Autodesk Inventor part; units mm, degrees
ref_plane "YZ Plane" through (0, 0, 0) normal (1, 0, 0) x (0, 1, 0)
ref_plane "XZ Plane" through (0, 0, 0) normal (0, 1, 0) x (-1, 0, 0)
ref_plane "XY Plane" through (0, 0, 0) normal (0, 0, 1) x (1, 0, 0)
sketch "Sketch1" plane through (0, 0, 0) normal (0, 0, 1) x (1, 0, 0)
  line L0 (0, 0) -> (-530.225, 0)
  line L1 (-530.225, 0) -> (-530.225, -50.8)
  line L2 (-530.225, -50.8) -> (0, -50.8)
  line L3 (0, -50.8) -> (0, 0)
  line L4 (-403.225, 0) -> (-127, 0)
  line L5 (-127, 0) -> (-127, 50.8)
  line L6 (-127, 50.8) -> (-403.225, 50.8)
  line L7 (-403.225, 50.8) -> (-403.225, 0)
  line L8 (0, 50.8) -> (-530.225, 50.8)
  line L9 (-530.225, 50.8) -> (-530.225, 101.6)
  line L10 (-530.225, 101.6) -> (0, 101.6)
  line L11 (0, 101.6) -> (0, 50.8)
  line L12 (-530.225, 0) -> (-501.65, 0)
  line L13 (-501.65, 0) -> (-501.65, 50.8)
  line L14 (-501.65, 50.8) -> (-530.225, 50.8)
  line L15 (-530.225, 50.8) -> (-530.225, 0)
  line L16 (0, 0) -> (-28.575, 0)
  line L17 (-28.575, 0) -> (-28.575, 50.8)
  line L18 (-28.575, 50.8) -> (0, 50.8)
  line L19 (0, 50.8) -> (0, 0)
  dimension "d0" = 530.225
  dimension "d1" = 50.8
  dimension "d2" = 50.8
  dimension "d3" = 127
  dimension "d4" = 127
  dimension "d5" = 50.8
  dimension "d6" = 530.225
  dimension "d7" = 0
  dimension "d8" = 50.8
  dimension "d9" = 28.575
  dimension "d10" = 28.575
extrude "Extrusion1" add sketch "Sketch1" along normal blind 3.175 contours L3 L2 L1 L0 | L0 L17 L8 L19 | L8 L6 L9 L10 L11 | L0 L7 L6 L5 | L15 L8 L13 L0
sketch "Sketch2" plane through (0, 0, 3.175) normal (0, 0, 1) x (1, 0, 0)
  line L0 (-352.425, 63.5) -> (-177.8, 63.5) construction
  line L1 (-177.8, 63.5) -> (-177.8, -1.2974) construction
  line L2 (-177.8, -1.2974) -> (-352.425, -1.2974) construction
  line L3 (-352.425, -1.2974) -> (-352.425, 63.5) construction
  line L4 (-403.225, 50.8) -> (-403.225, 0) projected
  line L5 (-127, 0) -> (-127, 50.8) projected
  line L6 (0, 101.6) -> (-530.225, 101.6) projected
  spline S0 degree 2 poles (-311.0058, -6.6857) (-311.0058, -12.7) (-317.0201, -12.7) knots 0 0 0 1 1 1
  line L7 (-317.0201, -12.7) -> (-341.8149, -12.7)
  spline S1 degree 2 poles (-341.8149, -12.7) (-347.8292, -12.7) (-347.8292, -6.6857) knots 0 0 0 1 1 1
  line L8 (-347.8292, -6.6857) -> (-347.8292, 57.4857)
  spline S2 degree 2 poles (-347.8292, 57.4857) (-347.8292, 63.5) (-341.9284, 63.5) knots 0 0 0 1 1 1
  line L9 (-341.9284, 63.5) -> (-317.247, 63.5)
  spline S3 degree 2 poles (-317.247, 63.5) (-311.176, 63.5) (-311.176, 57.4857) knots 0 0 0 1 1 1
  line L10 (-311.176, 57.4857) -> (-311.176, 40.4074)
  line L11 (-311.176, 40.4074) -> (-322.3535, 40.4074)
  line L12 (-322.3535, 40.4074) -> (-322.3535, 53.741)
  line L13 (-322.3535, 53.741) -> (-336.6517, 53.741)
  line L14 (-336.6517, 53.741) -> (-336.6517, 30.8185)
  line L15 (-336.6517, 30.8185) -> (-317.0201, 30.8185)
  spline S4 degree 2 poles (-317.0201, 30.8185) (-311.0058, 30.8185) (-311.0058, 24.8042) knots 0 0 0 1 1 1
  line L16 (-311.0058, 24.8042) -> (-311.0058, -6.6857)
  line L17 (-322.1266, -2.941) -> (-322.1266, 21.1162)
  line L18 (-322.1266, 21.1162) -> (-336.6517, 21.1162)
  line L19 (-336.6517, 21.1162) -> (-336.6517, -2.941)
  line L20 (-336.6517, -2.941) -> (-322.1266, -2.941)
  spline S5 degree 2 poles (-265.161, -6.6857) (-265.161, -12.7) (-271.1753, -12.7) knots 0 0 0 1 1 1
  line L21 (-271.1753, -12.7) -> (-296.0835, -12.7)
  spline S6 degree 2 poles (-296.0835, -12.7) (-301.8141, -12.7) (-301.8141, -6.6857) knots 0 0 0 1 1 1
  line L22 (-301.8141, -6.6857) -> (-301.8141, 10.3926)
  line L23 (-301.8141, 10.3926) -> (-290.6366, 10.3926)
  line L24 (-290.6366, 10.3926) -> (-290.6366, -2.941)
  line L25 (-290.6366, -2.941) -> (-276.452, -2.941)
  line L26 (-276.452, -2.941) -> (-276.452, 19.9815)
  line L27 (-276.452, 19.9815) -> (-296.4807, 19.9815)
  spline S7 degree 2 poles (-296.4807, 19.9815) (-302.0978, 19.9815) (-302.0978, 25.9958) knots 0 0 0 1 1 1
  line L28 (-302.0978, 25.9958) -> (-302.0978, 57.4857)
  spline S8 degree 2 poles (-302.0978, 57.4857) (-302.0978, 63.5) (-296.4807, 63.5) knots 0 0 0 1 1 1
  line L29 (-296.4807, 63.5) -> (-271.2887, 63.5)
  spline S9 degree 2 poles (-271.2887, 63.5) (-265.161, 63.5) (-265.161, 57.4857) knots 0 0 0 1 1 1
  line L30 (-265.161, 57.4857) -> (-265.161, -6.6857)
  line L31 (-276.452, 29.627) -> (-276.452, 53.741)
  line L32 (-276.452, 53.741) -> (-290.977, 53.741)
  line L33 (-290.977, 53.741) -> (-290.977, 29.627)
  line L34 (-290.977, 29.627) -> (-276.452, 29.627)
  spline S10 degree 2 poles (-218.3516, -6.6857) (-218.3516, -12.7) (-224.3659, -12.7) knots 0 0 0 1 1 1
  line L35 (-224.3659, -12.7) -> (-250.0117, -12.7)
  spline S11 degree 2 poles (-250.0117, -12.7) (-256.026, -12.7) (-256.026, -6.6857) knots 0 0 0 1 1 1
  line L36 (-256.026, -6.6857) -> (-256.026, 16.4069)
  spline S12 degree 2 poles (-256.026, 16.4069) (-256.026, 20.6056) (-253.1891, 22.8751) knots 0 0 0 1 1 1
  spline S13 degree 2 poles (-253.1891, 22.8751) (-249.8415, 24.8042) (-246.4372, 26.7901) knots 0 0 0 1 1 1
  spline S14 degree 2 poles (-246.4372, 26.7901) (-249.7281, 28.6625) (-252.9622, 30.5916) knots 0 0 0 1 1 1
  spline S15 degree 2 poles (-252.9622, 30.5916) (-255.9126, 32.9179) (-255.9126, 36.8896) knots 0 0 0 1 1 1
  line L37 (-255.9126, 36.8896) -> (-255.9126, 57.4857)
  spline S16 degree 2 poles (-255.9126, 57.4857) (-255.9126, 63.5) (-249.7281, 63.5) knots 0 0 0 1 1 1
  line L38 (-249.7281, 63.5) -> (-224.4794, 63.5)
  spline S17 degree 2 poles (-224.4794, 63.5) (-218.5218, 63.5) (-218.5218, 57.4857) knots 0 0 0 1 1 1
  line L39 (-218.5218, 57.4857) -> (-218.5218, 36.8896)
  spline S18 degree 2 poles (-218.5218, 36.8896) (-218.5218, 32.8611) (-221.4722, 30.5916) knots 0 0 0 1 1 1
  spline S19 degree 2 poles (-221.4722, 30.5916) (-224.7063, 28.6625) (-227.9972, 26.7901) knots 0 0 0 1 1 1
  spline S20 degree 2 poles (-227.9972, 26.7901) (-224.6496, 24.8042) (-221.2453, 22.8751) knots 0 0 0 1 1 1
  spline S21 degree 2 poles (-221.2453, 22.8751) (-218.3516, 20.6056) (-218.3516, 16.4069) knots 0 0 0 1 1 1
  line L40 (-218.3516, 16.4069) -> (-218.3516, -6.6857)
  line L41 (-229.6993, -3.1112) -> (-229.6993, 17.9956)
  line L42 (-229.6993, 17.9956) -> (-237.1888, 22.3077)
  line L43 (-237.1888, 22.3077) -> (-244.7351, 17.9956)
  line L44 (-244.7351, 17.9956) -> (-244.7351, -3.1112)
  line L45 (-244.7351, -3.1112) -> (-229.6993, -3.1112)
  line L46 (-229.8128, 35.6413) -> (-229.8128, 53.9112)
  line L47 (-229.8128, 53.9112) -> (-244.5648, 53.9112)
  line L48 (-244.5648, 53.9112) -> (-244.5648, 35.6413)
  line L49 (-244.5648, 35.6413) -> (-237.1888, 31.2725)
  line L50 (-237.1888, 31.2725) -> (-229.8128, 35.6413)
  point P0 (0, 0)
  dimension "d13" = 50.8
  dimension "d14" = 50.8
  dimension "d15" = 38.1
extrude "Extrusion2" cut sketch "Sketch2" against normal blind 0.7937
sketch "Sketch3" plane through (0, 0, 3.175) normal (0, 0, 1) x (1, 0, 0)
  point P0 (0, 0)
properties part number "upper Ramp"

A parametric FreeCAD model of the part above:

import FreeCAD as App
import Part
import Sketcher

V = App.Vector
Q = App.Units.Quantity

doc = App.newDocument("Part")
params = doc.addObject("Spreadsheet::Sheet", "Params")
for row, (alias, value) in enumerate([
    ("sketch1_height", "2 in"),
    ("sketch1_width", "20.875 in"),
    ("pad1_length", "0.125 in"),
    ("pocket1_length", "0.031248 in"),
], start=1):
    params.set(f"A{row}", alias)
    params.set(f"B{row}", "=" + value)
    params.setAlias(f"B{row}", alias)

body = doc.addObject("PartDesign::Body", "Body")

sketch1 = doc.addObject("Sketcher::SketchObject", "Sketch")
body.addObject(sketch1)
sketch1.AttachmentSupport = (doc.XY_Plane, [""])
sketch1.MapMode = "FlatFace"
sketch1.addGeometry(Part.LineSegment(V(0, -51, 0), V(0, 102, 0)), False)
sketch1.addGeometry(Part.LineSegment(V(0, 102, 0), V(-530, 102, 0)), False)
sketch1.addGeometry(Part.LineSegment(V(-530, 102, 0), V(-530, -51, 0)), False)
sketch1.addGeometry(Part.LineSegment(V(-530, -51, 0), V(0, -51, 0)), False)
sketch1.addGeometry(Part.LineSegment(V(-403, 0, 0), V(-502, 0, 0)), False)
sketch1.addGeometry(Part.LineSegment(V(-502, 0, 0), V(-502, 51, 0)), False)
sketch1.addGeometry(Part.LineSegment(V(-502, 51, 0), V(-403, 51, 0)), False)
sketch1.addGeometry(Part.LineSegment(V(-403, 51, 0), V(-403, 0, 0)), False)
sketch1.addGeometry(Part.LineSegment(V(-29, 0, 0), V(-127, 0, 0)), False)
sketch1.addGeometry(Part.LineSegment(V(-127, 0, 0), V(-127, 51, 0)), False)
sketch1.addGeometry(Part.LineSegment(V(-127, 51, 0), V(-29, 51, 0)), False)
sketch1.addGeometry(Part.LineSegment(V(-29, 51, 0), V(-29, 0, 0)), False)
sketch1.addConstraint(Sketcher.Constraint("Coincident", 0, 2, 1, 1))
sketch1.addConstraint(Sketcher.Constraint("Coincident", 1, 2, 2, 1))
sketch1.addConstraint(Sketcher.Constraint("Coincident", 2, 2, 3, 1))
sketch1.addConstraint(Sketcher.Constraint("Coincident", 3, 2, 0, 1))
sketch1.addConstraint(Sketcher.Constraint("Coincident", 4, 2, 5, 1))
sketch1.addConstraint(Sketcher.Constraint("Coincident", 5, 2, 6, 1))
sketch1.addConstraint(Sketcher.Constraint("Coincident", 6, 2, 7, 1))
sketch1.addConstraint(Sketcher.Constraint("Coincident", 7, 2, 4, 1))
sketch1.addConstraint(Sketcher.Constraint("Coincident", 8, 2, 9, 1))
sketch1.addConstraint(Sketcher.Constraint("Coincident", 9, 2, 10, 1))
sketch1.addConstraint(Sketcher.Constraint("Coincident", 10, 2, 11, 1))
sketch1.addConstraint(Sketcher.Constraint("Coincident", 11, 2, 8, 1))
sketch1.addConstraint(Sketcher.Constraint("Vertical", 0))
sketch1.addConstraint(Sketcher.Constraint("Horizontal", 1))
sketch1.addConstraint(Sketcher.Constraint("Vertical", 2))
sketch1.addConstraint(Sketcher.Constraint("Horizontal", 3))
sketch1.addConstraint(Sketcher.Constraint("Horizontal", 4))
sketch1.addConstraint(Sketcher.Constraint("Vertical", 5))
sketch1.addConstraint(Sketcher.Constraint("Horizontal", 6))
sketch1.addConstraint(Sketcher.Constraint("Vertical", 7))
sketch1.addConstraint(Sketcher.Constraint("Horizontal", 8))
sketch1.addConstraint(Sketcher.Constraint("Vertical", 9))
sketch1.addConstraint(Sketcher.Constraint("Horizontal", 10))
sketch1.addConstraint(Sketcher.Constraint("Vertical", 11))
sketch1.addConstraint(Sketcher.Constraint("PointOnObject", 0, 2, -2))
sketch1.addConstraint(Sketcher.Constraint("PointOnObject", 4, 2, -1))
sketch1.addConstraint(Sketcher.Constraint("PointOnObject", 8, 2, -1))
sketch1.addConstraint(Sketcher.Constraint("Horizontal", 6, 2, 9, 2))
sketch1.addConstraint(Sketcher.Constraint("Equal", 6, 8))
sketch1.addConstraint(Sketcher.Constraint("DistanceY", 5, 1, 5, 2, Q("2 in")))
sketch1.addConstraint(Sketcher.Constraint("DistanceY", 2, 2, -1, 1, Q("2 in")))
sketch1.addConstraint(Sketcher.Constraint("DistanceX", 8, 2, -1, 1, Q("5 in")))
sketch1.addConstraint(Sketcher.Constraint("DistanceY", 5, 2, 1, 2, Q("2 in")))
sketch1.addConstraint(Sketcher.Constraint("DistanceX", 1, 2, 6, 2, Q("5 in")))
sketch1.addConstraint(Sketcher.Constraint("DistanceX", 1, 2, 1, 1, Q("20.875 in")))
sketch1.addConstraint(Sketcher.Constraint("DistanceX", 10, 2, -1, 1, Q("1.125 in")))
sketch1.setExpression("Constraints[29]", "Params.sketch1_height")
sketch1.setExpression("Constraints[34]", "Params.sketch1_width")
pad1 = doc.addObject("PartDesign::Pad", "Pad")
body.addObject(pad1)
pad1.Profile = sketch1
pad1.setExpression("Length", "Params.pad1_length")

sketch2 = doc.addObject("Sketcher::SketchObject", "Sketch001")
body.addObject(sketch2)
sketch2.AttachmentSupport = (doc.XY_Plane, [""])
sketch2.MapMode = "FlatFace"
sketch2.AttachmentOffset = App.Placement(V(0, 0, 0.125 * 25.4), App.Rotation())
sketch2.addGeometry(Part.BSplineCurve([V(-311.0058, -6.6857, 0), V(-311.0058, -12.7, 0), V(-317.0201, -12.7, 0)], [3, 3], [0, 1], False, 2, [1, 1, 1], False), False)
sketch2.addGeometry(Part.LineSegment(V(-311.0058, -6.6857, 0), V(-311.0058, 24.8042, 0)), False)
sketch2.addGeometry(Part.BSplineCurve([V(-317.0201, 30.8185, 0), V(-311.0058, 30.8185, 0), V(-311.0058, 24.8042, 0)], [3, 3], [0, 1], False, 2, [1, 1, 1], False), False)
sketch2.addGeometry(Part.LineSegment(V(-317.0201, 30.8185, 0), V(-336.6517, 30.8185, 0)), False)
sketch2.addGeometry(Part.LineSegment(V(-336.6517, 30.8185, 0), V(-336.6517, 53.741, 0)), False)
sketch2.addGeometry(Part.LineSegment(V(-336.6517, 53.741, 0), V(-322.3535, 53.741, 0)), False)
sketch2.addGeometry(Part.LineSegment(V(-322.3535, 53.741, 0), V(-322.3535, 40.4074, 0)), False)
sketch2.addGeometry(Part.LineSegment(V(-322.3535, 40.4074, 0), V(-311.176, 40.4074, 0)), False)
sketch2.addGeometry(Part.LineSegment(V(-311.176, 40.4074, 0), V(-311.176, 57.4857, 0)), False)
sketch2.addGeometry(Part.BSplineCurve([V(-317.247, 63.5, 0), V(-311.176, 63.5, 0), V(-311.176, 57.4857, 0)], [3, 3], [0, 1], False, 2, [1, 1, 1], False), False)
sketch2.addGeometry(Part.LineSegment(V(-317.247, 63.5, 0), V(-341.9284, 63.5, 0)), False)
sketch2.addGeometry(Part.BSplineCurve([V(-347.8292, 57.4857, 0), V(-347.8292, 63.5, 0), V(-341.9284, 63.5, 0)], [3, 3], [0, 1], False, 2, [1, 1, 1], False), False)
sketch2.addGeometry(Part.LineSegment(V(-347.8292, 57.4857, 0), V(-347.8292, -6.6857, 0)), False)
sketch2.addGeometry(Part.BSplineCurve([V(-341.8149, -12.7, 0), V(-347.8292, -12.7, 0), V(-347.8292, -6.6857, 0)], [3, 3], [0, 1], False, 2, [1, 1, 1], False), False)
sketch2.addGeometry(Part.LineSegment(V(-341.8149, -12.7, 0), V(-317.0201, -12.7, 0)), False)
sketch2.addGeometry(Part.LineSegment(V(-322.1266, 21.1162, 0), V(-322.1266, -2.941, 0)), False)
sketch2.addGeometry(Part.LineSegment(V(-322.1266, -2.941, 0), V(-336.6517, -2.941, 0)), False)
sketch2.addGeometry(Part.LineSegment(V(-336.6517, -2.941, 0), V(-336.6517, 21.1162, 0)), False)
sketch2.addGeometry(Part.LineSegment(V(-336.6517, 21.1162, 0), V(-322.1266, 21.1162, 0)), False)
sketch2.addGeometry(Part.BSplineCurve([V(-265.161, -6.6857, 0), V(-265.161, -12.7, 0), V(-271.1753, -12.7, 0)], [3, 3], [0, 1], False, 2, [1, 1, 1], False), False)
sketch2.addGeometry(Part.LineSegment(V(-265.161, -6.6857, 0), V(-265.161, 57.4857, 0)), False)
sketch2.addGeometry(Part.BSplineCurve([V(-271.2887, 63.5, 0), V(-265.161, 63.5, 0), V(-265.161, 57.4857, 0)], [3, 3], [0, 1], False, 2, [1, 1, 1], False), False)
sketch2.addGeometry(Part.LineSegment(V(-271.2887, 63.5, 0), V(-296.4807, 63.5, 0)), False)
sketch2.addGeometry(Part.BSplineCurve([V(-302.0978, 57.4857, 0), V(-302.0978, 63.5, 0), V(-296.4807, 63.5, 0)], [3, 3], [0, 1], False, 2, [1, 1, 1], False), False)
sketch2.addGeometry(Part.LineSegment(V(-302.0978, 57.4857, 0), V(-302.0978, 25.9958, 0)), False)
sketch2.addGeometry(Part.BSplineCurve([V(-296.4807, 19.9815, 0), V(-302.0978, 19.9815, 0), V(-302.0978, 25.9958, 0)], [3, 3], [0, 1], False, 2, [1, 1, 1], False), False)
sketch2.addGeometry(Part.LineSegment(V(-296.4807, 19.9815, 0), V(-276.452, 19.9815, 0)), False)
sketch2.addGeometry(Part.LineSegment(V(-276.452, 19.9815, 0), V(-276.452, -2.941, 0)), False)
sketch2.addGeometry(Part.LineSegment(V(-276.452, -2.941, 0), V(-290.6366, -2.941, 0)), False)
sketch2.addGeometry(Part.LineSegment(V(-290.6366, -2.941, 0), V(-290.6366, 10.3926, 0)), False)
sketch2.addGeometry(Part.LineSegment(V(-290.6366, 10.3926, 0), V(-301.8141, 10.3926, 0)), False)
sketch2.addGeometry(Part.LineSegment(V(-301.8141, 10.3926, 0), V(-301.8141, -6.6857, 0)), False)
sketch2.addGeometry(Part.BSplineCurve([V(-296.0835, -12.7, 0), V(-301.8141, -12.7, 0), V(-301.8141, -6.6857, 0)], [3, 3], [0, 1], False, 2, [1, 1, 1], False), False)
sketch2.addGeometry(Part.LineSegment(V(-296.0835, -12.7, 0), V(-271.1753, -12.7, 0)), False)
sketch2.addGeometry(Part.LineSegment(V(-276.452, 53.741, 0), V(-276.452, 29.627, 0)), False)
sketch2.addGeometry(Part.LineSegment(V(-276.452, 29.627, 0), V(-290.977, 29.627, 0)), False)
sketch2.addGeometry(Part.LineSegment(V(-290.977, 29.627, 0), V(-290.977, 53.741, 0)), False)
sketch2.addGeometry(Part.LineSegment(V(-290.977, 53.741, 0), V(-276.452, 53.741, 0)), False)
sketch2.addGeometry(Part.BSplineCurve([V(-218.3516, -6.6857, 0), V(-218.3516, -12.7, 0), V(-224.3659, -12.7, 0)], [3, 3], [0, 1], False, 2, [1, 1, 1], False), False)
sketch2.addGeometry(Part.LineSegment(V(-218.3516, -6.6857, 0), V(-218.3516, 16.4069, 0)), False)
sketch2.addGeometry(Part.BSplineCurve([V(-221.2453, 22.8751, 0), V(-218.3516, 20.6056, 0), V(-218.3516, 16.4069, 0)], [3, 3], [0, 1], False, 2, [1, 1, 1], False), False)
sketch2.addGeometry(Part.BSplineCurve([V(-227.9972, 26.7901, 0), V(-224.6496, 24.8042, 0), V(-221.2453, 22.8751, 0)], [3, 3], [0, 1], False, 2, [1, 1, 1], False), False)
sketch2.addGeometry(Part.BSplineCurve([V(-221.4722, 30.5916, 0), V(-224.7063, 28.6625, 0), V(-227.9972, 26.7901, 0)], [3, 3], [0, 1], False, 2, [1, 1, 1], False), False)
sketch2.addGeometry(Part.BSplineCurve([V(-218.5218, 36.8896, 0), V(-218.5218, 32.8611, 0), V(-221.4722, 30.5916, 0)], [3, 3], [0, 1], False, 2, [1, 1, 1], False), False)
sketch2.addGeometry(Part.LineSegment(V(-218.5218, 36.8896, 0), V(-218.5218, 57.4857, 0)), False)
sketch2.addGeometry(Part.BSplineCurve([V(-224.4794, 63.5, 0), V(-218.5218, 63.5, 0), V(-218.5218, 57.4857, 0)], [3, 3], [0, 1], False, 2, [1, 1, 1], False), False)
sketch2.addGeometry(Part.LineSegment(V(-224.4794, 63.5, 0), V(-249.7281, 63.5, 0)), False)
sketch2.addGeometry(Part.BSplineCurve([V(-255.9126, 57.4857, 0), V(-255.9126, 63.5, 0), V(-249.7281, 63.5, 0)], [3, 3], [0, 1], False, 2, [1, 1, 1], False), False)
sketch2.addGeometry(Part.LineSegment(V(-255.9126, 57.4857, 0), V(-255.9126, 36.8896, 0)), False)
sketch2.addGeometry(Part.BSplineCurve([V(-252.9622, 30.5916, 0), V(-255.9126, 32.9179, 0), V(-255.9126, 36.8896, 0)], [3, 3], [0, 1], False, 2, [1, 1, 1], False), False)
sketch2.addGeometry(Part.BSplineCurve([V(-246.4372, 26.7901, 0), V(-249.7281, 28.6625, 0), V(-252.9622, 30.5916, 0)], [3, 3], [0, 1], False, 2, [1, 1, 1], False), False)
sketch2.addGeometry(Part.BSplineCurve([V(-253.1891, 22.8751, 0), V(-249.8415, 24.8042, 0), V(-246.4372, 26.7901, 0)], [3, 3], [0, 1], False, 2, [1, 1, 1], False), False)
sketch2.addGeometry(Part.BSplineCurve([V(-256.026, 16.4069, 0), V(-256.026, 20.6056, 0), V(-253.1891, 22.8751, 0)], [3, 3], [0, 1], False, 2, [1, 1, 1], False), False)
sketch2.addGeometry(Part.LineSegment(V(-256.026, 16.4069, 0), V(-256.026, -6.6857, 0)), False)
sketch2.addGeometry(Part.BSplineCurve([V(-250.0117, -12.7, 0), V(-256.026, -12.7, 0), V(-256.026, -6.6857, 0)], [3, 3], [0, 1], False, 2, [1, 1, 1], False), False)
sketch2.addGeometry(Part.LineSegment(V(-250.0117, -12.7, 0), V(-224.3659, -12.7, 0)), False)
sketch2.addGeometry(Part.LineSegment(V(-229.6993, 17.9956, 0), V(-229.6993, -3.1112, 0)), False)
sketch2.addGeometry(Part.LineSegment(V(-229.6993, -3.1112, 0), V(-244.7351, -3.1112, 0)), False)
sketch2.addGeometry(Part.LineSegment(V(-244.7351, -3.1112, 0), V(-244.7351, 17.9956, 0)), False)
sketch2.addGeometry(Part.LineSegment(V(-244.7351, 17.9956, 0), V(-237.1888, 22.3077, 0)), False)
sketch2.addGeometry(Part.LineSegment(V(-237.1888, 22.3077, 0), V(-229.6993, 17.9956, 0)), False)
sketch2.addGeometry(Part.LineSegment(V(-229.8128, 53.9112, 0), V(-229.8128, 35.6413, 0)), False)
sketch2.addGeometry(Part.LineSegment(V(-229.8128, 35.6413, 0), V(-237.1888, 31.2725, 0)), False)
sketch2.addGeometry(Part.LineSegment(V(-237.1888, 31.2725, 0), V(-244.5648, 35.6413, 0)), False)
sketch2.addGeometry(Part.LineSegment(V(-244.5648, 35.6413, 0), V(-244.5648, 53.9112, 0)), False)
sketch2.addGeometry(Part.LineSegment(V(-244.5648, 53.9112, 0), V(-229.8128, 53.9112, 0)), False)
sketch2.addConstraint(Sketcher.Constraint("Block", 0))
sketch2.addConstraint(Sketcher.Constraint("Block", 2))
sketch2.addConstraint(Sketcher.Constraint("Block", 9))
sketch2.addConstraint(Sketcher.Constraint("Block", 11))
sketch2.addConstraint(Sketcher.Constraint("Block", 13))
sketch2.addConstraint(Sketcher.Constraint("Block", 19))
sketch2.addConstraint(Sketcher.Constraint("Block", 21))
sketch2.addConstraint(Sketcher.Constraint("Block", 23))
sketch2.addConstraint(Sketcher.Constraint("Block", 25))
sketch2.addConstraint(Sketcher.Constraint("Block", 32))
sketch2.addConstraint(Sketcher.Constraint("Block", 38))
sketch2.addConstraint(Sketcher.Constraint("Block", 40))
sketch2.addConstraint(Sketcher.Constraint("Block", 41))
sketch2.addConstraint(Sketcher.Constraint("Block", 42))
sketch2.addConstraint(Sketcher.Constraint("Block", 43))
sketch2.addConstraint(Sketcher.Constraint("Block", 45))
sketch2.addConstraint(Sketcher.Constraint("Block", 47))
sketch2.addConstraint(Sketcher.Constraint("Block", 49))
sketch2.addConstraint(Sketcher.Constraint("Block", 50))
sketch2.addConstraint(Sketcher.Constraint("Block", 51))
sketch2.addConstraint(Sketcher.Constraint("Block", 52))
sketch2.addConstraint(Sketcher.Constraint("Block", 54))
sketch2.addConstraint(Sketcher.Constraint("Coincident", 0, 1, 1, 1))
sketch2.addConstraint(Sketcher.Constraint("Coincident", 1, 2, 2, 2))
sketch2.addConstraint(Sketcher.Constraint("Coincident", 2, 1, 3, 1))
sketch2.addConstraint(Sketcher.Constraint("Coincident", 3, 2, 4, 1))
sketch2.addConstraint(Sketcher.Constraint("Coincident", 4, 2, 5, 1))
sketch2.addConstraint(Sketcher.Constraint("Coincident", 5, 2, 6, 1))
sketch2.addConstraint(Sketcher.Constraint("Coincident", 6, 2, 7, 1))
sketch2.addConstraint(Sketcher.Constraint("Coincident", 7, 2, 8, 1))
sketch2.addConstraint(Sketcher.Constraint("Coincident", 8, 2, 9, 2))
sketch2.addConstraint(Sketcher.Constraint("Coincident", 9, 1, 10, 1))
sketch2.addConstraint(Sketcher.Constraint("Coincident", 10, 2, 11, 2))
sketch2.addConstraint(Sketcher.Constraint("Coincident", 11, 1, 12, 1))
sketch2.addConstraint(Sketcher.Constraint("Coincident", 12, 2, 13, 2))
sketch2.addConstraint(Sketcher.Constraint("Coincident", 13, 1, 14, 1))
sketch2.addConstraint(Sketcher.Constraint("Coincident", 14, 2, 0, 2))
sketch2.addConstraint(Sketcher.Constraint("Coincident", 15, 2, 16, 1))
sketch2.addConstraint(Sketcher.Constraint("Coincident", 16, 2, 17, 1))
sketch2.addConstraint(Sketcher.Constraint("Coincident", 17, 2, 18, 1))
sketch2.addConstraint(Sketcher.Constraint("Coincident", 18, 2, 15, 1))
sketch2.addConstraint(Sketcher.Constraint("Coincident", 19, 1, 20, 1))
sketch2.addConstraint(Sketcher.Constraint("Coincident", 20, 2, 21, 2))
sketch2.addConstraint(Sketcher.Constraint("Coincident", 21, 1, 22, 1))
sketch2.addConstraint(Sketcher.Constraint("Coincident", 22, 2, 23, 2))
sketch2.addConstraint(Sketcher.Constraint("Coincident", 23, 1, 24, 1))
sketch2.addConstraint(Sketcher.Constraint("Coincident", 24, 2, 25, 2))
sketch2.addConstraint(Sketcher.Constraint("Coincident", 25, 1, 26, 1))
sketch2.addConstraint(Sketcher.Constraint("Coincident", 26, 2, 27, 1))
sketch2.addConstraint(Sketcher.Constraint("Coincident", 27, 2, 28, 1))
sketch2.addConstraint(Sketcher.Constraint("Coincident", 28, 2, 29, 1))
sketch2.addConstraint(Sketcher.Constraint("Coincident", 29, 2, 30, 1))
sketch2.addConstraint(Sketcher.Constraint("Coincident", 30, 2, 31, 1))
sketch2.addConstraint(Sketcher.Constraint("Coincident", 31, 2, 32, 2))
sketch2.addConstraint(Sketcher.Constraint("Coincident", 32, 1, 33, 1))
sketch2.addConstraint(Sketcher.Constraint("Coincident", 33, 2, 19, 2))
sketch2.addConstraint(Sketcher.Constraint("Coincident", 34, 2, 35, 1))
sketch2.addConstraint(Sketcher.Constraint("Coincident", 35, 2, 36, 1))
sketch2.addConstraint(Sketcher.Constraint("Coincident", 36, 2, 37, 1))
sketch2.addConstraint(Sketcher.Constraint("Coincident", 37, 2, 34, 1))
sketch2.addConstraint(Sketcher.Constraint("Coincident", 38, 1, 39, 1))
sketch2.addConstraint(Sketcher.Constraint("Coincident", 39, 2, 40, 2))
sketch2.addConstraint(Sketcher.Constraint("Coincident", 43, 1, 44, 1))
sketch2.addConstraint(Sketcher.Constraint("Coincident", 44, 2, 45, 2))
sketch2.addConstraint(Sketcher.Constraint("Coincident", 45, 1, 46, 1))
sketch2.addConstraint(Sketcher.Constraint("Coincident", 46, 2, 47, 2))
sketch2.addConstraint(Sketcher.Constraint("Coincident", 47, 1, 48, 1))
sketch2.addConstraint(Sketcher.Constraint("Coincident", 48, 2, 49, 2))
sketch2.addConstraint(Sketcher.Constraint("Coincident", 52, 1, 53, 1))
sketch2.addConstraint(Sketcher.Constraint("Coincident", 53, 2, 54, 2))
sketch2.addConstraint(Sketcher.Constraint("Coincident", 54, 1, 55, 1))
sketch2.addConstraint(Sketcher.Constraint("Coincident", 55, 2, 38, 2))
sketch2.addConstraint(Sketcher.Constraint("Coincident", 56, 2, 57, 1))
sketch2.addConstraint(Sketcher.Constraint("Coincident", 57, 2, 58, 1))
sketch2.addConstraint(Sketcher.Constraint("Coincident", 58, 2, 59, 1))
sketch2.addConstraint(Sketcher.Constraint("Coincident", 59, 2, 60, 1))
sketch2.addConstraint(Sketcher.Constraint("Coincident", 60, 2, 56, 1))
sketch2.addConstraint(Sketcher.Constraint("Coincident", 61, 2, 62, 1))
sketch2.addConstraint(Sketcher.Constraint("Coincident", 62, 2, 63, 1))
sketch2.addConstraint(Sketcher.Constraint("Coincident", 63, 2, 64, 1))
sketch2.addConstraint(Sketcher.Constraint("Coincident", 64, 2, 65, 1))
sketch2.addConstraint(Sketcher.Constraint("Coincident", 65, 2, 61, 1))
sketch2.addConstraint(Sketcher.Constraint("Horizontal", 3))
sketch2.addConstraint(Sketcher.Constraint("Vertical", 4))
sketch2.addConstraint(Sketcher.Constraint("Horizontal", 5))
sketch2.addConstraint(Sketcher.Constraint("Vertical", 6))
sketch2.addConstraint(Sketcher.Constraint("Horizontal", 7))
sketch2.addConstraint(Sketcher.Constraint("Vertical", 8))
sketch2.addConstraint(Sketcher.Constraint("Vertical", 15))
sketch2.addConstraint(Sketcher.Constraint("Horizontal", 16))
sketch2.addConstraint(Sketcher.Constraint("Vertical", 17))
sketch2.addConstraint(Sketcher.Constraint("Horizontal", 18))
sketch2.addConstraint(Sketcher.Constraint("Horizontal", 26))
sketch2.addConstraint(Sketcher.Constraint("Vertical", 27))
sketch2.addConstraint(Sketcher.Constraint("Horizontal", 28))
sketch2.addConstraint(Sketcher.Constraint("Vertical", 29))
sketch2.addConstraint(Sketcher.Constraint("Horizontal", 30))
sketch2.addConstraint(Sketcher.Constraint("Vertical", 31))
sketch2.addConstraint(Sketcher.Constraint("Vertical", 34))
sketch2.addConstraint(Sketcher.Constraint("Horizontal", 35))
sketch2.addConstraint(Sketcher.Constraint("Vertical", 36))
sketch2.addConstraint(Sketcher.Constraint("Horizontal", 37))
sketch2.addConstraint(Sketcher.Constraint("Vertical", 56))
sketch2.addConstraint(Sketcher.Constraint("Horizontal", 57))
sketch2.addConstraint(Sketcher.Constraint("Vertical", 58))
sketch2.addConstraint(Sketcher.Constraint("Vertical", 61))
sketch2.addConstraint(Sketcher.Constraint("Vertical", 64))
sketch2.addConstraint(Sketcher.Constraint("Horizontal", 65))
sketch2.addConstraint(Sketcher.Constraint("DistanceX", 3, 2, 3, 1, Q("0.7729 in")))
sketch2.addConstraint(Sketcher.Constraint("DistanceX", 16, 2, -1, 1, Q("13.254 in")))
sketch2.addConstraint(Sketcher.Constraint("DistanceY", 12, 2, 4, 2, Q("2.379 in")))
sketch2.addConstraint(Sketcher.Constraint("DistanceY", 62, 2, 61, 2, Q("0.172 in")))
sketch2.addConstraint(Sketcher.Constraint("DistanceY", 62, 2, 63, 2, Q("0.172 in")))
sketch2.addConstraint(Sketcher.Constraint("Distance", 62, Q("0.3375 in")))
sketch2.addConstraint(Sketcher.Constraint("Distance", 63, Q("0.3375 in")))
sketch2.addConstraint(Sketcher.Constraint("DistanceX", 5, 1, 5, 2, 14.2982))
sketch2.addConstraint(Sketcher.Constraint("DistanceX", 16, 2, 16, 1, 14.525))
sketch2.addConstraint(Sketcher.Constraint("DistanceX", 26, 1, 26, 2, 20.0287))
sketch2.addConstraint(Sketcher.Constraint("DistanceX", 28, 2, 28, 1, 14.1846))
sketch2.addConstraint(Sketcher.Constraint("DistanceX", 35, 2, 35, 1, 14.525))
sketch2.addConstraint(Sketcher.Constraint("DistanceX", 57, 2, 57, 1, 15.0358))
sketch2.addConstraint(Sketcher.Constraint("DistanceY", 6, 2, 6, 1, 13.3336))
sketch2.addConstraint(Sketcher.Constraint("DistanceY", 15, 2, 15, 1, 24.0572))
sketch2.addConstraint(Sketcher.Constraint("DistanceY", 27, 2, 27, 1, 22.9225))
sketch2.addConstraint(Sketcher.Constraint("DistanceY", 29, 1, 29, 2, 13.3336))
sketch2.addConstraint(Sketcher.Constraint("DistanceY", 34, 2, 34, 1, 24.114))
sketch2.addConstraint(Sketcher.Constraint("DistanceY", 56, 2, 56, 1, 21.1068))
sketch2.addConstraint(Sketcher.Constraint("DistanceY", 58, 1, 58, 2, 21.1068))
sketch2.addConstraint(Sketcher.Constraint("DistanceY", 61, 2, 61, 1, Q("0.7192913 in")))
sketch2.addConstraint(Sketcher.Constraint("DistanceY", 56, 2, -1, 1, Q("0.1225 in")))
sketch2.addConstraint(Sketcher.Constraint("DistanceY", -1, 1, 61, 2, Q("1.4032 in")))
sketch2.addConstraint(Sketcher.Constraint("DistanceY", 17, 2, 6, 2, Q("0.7595 in")))
sketch2.addConstraint(Sketcher.Constraint("DistanceY", 34, 2, 20, 2, Q("1.0968 in")))
sketch2.addConstraint(Sketcher.Constraint("DistanceX", 30, 2, 34, 2, Q("0.9985 in")))
sketch2.addConstraint(Sketcher.Constraint("DistanceX", 27, 2, 57, 2, Q("1.2487 in")))
sketch2.addConstraint(Sketcher.Constraint("DistanceX", 58, 2, 59, 2, Q("0.2971 in")))
sketch2.addConstraint(Sketcher.Constraint("DistanceY", 59, 2, 48, 2, Q("0.5741 in")))
sketch2.addConstraint(Sketcher.Constraint("DistanceX", 59, 2, 61, 2, Q("0.2904 in")))
pocket1 = doc.addObject("PartDesign::Pocket", "Pocket")
body.addObject(pocket1)
pocket1.Profile = sketch2
pocket1.setExpression("Length", "Params.pocket1_length")

doc.recompute()
